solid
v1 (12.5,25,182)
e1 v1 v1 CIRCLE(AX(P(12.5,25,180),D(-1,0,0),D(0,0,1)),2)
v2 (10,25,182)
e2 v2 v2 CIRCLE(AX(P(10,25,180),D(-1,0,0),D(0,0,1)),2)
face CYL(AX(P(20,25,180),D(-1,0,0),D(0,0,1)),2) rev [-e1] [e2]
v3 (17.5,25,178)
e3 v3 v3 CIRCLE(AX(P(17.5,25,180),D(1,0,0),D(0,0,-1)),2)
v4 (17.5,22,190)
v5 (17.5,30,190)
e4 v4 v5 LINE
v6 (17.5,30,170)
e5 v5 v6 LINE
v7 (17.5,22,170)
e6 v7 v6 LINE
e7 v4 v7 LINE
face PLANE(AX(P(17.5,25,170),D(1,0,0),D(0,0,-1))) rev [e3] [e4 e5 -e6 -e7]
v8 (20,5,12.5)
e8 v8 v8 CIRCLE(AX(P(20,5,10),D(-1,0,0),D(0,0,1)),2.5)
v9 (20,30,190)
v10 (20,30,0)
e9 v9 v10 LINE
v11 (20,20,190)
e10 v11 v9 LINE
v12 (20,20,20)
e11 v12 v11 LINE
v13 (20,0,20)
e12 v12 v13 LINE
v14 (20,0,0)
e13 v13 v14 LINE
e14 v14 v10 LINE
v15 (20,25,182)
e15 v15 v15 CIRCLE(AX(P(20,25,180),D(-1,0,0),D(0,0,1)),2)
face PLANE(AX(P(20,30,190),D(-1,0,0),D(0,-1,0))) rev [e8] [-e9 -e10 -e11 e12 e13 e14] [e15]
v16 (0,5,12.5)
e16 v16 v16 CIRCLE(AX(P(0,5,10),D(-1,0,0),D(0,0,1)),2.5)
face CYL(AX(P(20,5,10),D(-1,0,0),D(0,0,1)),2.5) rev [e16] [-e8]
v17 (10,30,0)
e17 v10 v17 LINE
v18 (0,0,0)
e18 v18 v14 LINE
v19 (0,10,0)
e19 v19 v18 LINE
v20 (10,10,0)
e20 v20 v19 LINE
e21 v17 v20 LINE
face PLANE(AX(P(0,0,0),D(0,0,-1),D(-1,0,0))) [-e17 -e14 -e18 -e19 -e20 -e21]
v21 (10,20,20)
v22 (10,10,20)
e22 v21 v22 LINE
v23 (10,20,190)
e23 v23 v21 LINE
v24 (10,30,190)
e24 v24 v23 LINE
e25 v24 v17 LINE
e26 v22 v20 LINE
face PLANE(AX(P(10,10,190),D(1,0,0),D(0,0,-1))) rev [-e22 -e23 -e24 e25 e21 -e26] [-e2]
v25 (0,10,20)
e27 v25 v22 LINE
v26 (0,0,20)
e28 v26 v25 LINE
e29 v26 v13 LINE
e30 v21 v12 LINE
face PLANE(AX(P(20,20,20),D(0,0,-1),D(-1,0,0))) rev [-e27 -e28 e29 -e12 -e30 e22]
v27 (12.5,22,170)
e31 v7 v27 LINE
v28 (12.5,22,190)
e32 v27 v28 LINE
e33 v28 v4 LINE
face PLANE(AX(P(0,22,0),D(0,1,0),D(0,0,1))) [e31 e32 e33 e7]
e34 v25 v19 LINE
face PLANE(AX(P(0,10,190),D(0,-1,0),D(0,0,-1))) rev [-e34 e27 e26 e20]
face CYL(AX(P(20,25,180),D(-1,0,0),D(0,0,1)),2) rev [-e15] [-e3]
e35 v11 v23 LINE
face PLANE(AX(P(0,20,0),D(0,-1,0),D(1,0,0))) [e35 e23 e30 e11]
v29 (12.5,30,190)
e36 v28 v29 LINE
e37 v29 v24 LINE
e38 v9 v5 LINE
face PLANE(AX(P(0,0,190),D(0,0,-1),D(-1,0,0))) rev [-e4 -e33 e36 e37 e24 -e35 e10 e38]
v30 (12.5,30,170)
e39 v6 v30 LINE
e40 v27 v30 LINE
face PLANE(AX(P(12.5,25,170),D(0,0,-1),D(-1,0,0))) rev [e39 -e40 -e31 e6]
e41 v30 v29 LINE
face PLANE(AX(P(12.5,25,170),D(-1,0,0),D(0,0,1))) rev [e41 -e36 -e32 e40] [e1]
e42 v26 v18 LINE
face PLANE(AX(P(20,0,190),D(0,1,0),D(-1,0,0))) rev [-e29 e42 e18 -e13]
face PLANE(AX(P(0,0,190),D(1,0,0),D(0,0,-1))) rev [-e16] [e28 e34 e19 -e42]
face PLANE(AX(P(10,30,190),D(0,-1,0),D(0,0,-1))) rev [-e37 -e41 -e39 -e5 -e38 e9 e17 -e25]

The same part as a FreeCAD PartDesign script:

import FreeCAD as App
import Part
import Sketcher
from FreeCAD import Vector
Q = App.Units.Quantity


def add_polygon(sketch, points):
    """Adds a closed chain of lines whose ends are joined by coincident constraints."""
    first, n = sketch.GeometryCount, len(points)
    for a, b in zip(points, points[1:] + points[:1]):
        sketch.addGeometry(Part.LineSegment(App.Vector(*a, 0), App.Vector(*b, 0)), False)
    for i in range(n):
        sketch.addConstraint(Sketcher.Constraint("Coincident", first + i, 2, first + (i + 1) % n, 1))

doc = App.newDocument("Part")
body = doc.addObject("PartDesign::Body", "Body")

sketch1 = body.newObject("Sketcher::SketchObject", "Sketch")
sketch1.AttachmentSupport = (doc.getObject("XY_Plane"), [""])
sketch1.MapMode = "FlatFace"
add_polygon(sketch1, [(0, 10), (0, 0), (20, 0), (20, 30), (10, 30), (10, 10)])
sketch1.addConstraint(Sketcher.Constraint("Vertical", 0))
sketch1.addConstraint(Sketcher.Constraint("Horizontal", 1))
sketch1.addConstraint(Sketcher.Constraint("Vertical", 2))
sketch1.addConstraint(Sketcher.Constraint("Horizontal", 3))
sketch1.addConstraint(Sketcher.Constraint("Vertical", 4))
sketch1.addConstraint(Sketcher.Constraint("Horizontal", 5))
sketch1.addConstraint(Sketcher.Constraint("Coincident", 0, 2, -1, 1))
sketch1.addConstraint(Sketcher.Constraint("Equal", 3, 5))
sketch1.addConstraint(Sketcher.Constraint("Equal", 5, 0))
sketch1.addConstraint(Sketcher.Constraint("Equal", 1, 4))
sketch1.addConstraint(Sketcher.Constraint("DistanceX", 1, 1, 1, 2, Q("20 mm")))
pad1 = body.newObject("PartDesign::Pad", "Pad")
pad1.Profile = sketch1
pad1.Length = 190

sketch2 = body.newObject("Sketcher::SketchObject", "Sketch001")
sketch2.AttachmentSupport = (doc.getObject("XZ_Plane"), [""])
sketch2.MapMode = "FlatFace"
add_polygon(sketch2, [(10, 190), (10, 20), (20, 20), (20, 190)])
sketch2.addConstraint(Sketcher.Constraint("Vertical", 0))
sketch2.addConstraint(Sketcher.Constraint("Horizontal", 1))
sketch2.addConstraint(Sketcher.Constraint("Vertical", 2))
sketch2.addConstraint(Sketcher.Constraint("Horizontal", 3))
sketch2.addConstraint(Sketcher.Constraint("DistanceX", 1, 1, 1, 2, Q("10 mm")))
sketch2.addConstraint(Sketcher.Constraint("DistanceY", 0, 2, 0, 1, Q("170 mm")))
sketch2.addConstraint(Sketcher.Constraint("DistanceX", -1, 1, 0, 2, Q("10 mm")))
sketch2.addConstraint(Sketcher.Constraint("DistanceY", -1, 1, 0, 2, Q("20 mm")))
pocket1 = body.newObject("PartDesign::Pocket", "Pocket")
pocket1.Profile = sketch2
pocket1.Length = 20

sketch3 = body.newObject("Sketcher::SketchObject", "Sketch002")
sketch3.AttachmentSupport = (doc.getObject("YZ_Plane"), [""])
sketch3.MapMode = "FlatFace"
sketch3.AttachmentOffset = App.Placement(Vector(0, 0, 10), App.Rotation())
add_polygon(sketch3, [(10, 190), (0, 190), (0, 20), (10, 20)])
sketch3.addConstraint(Sketcher.Constraint("Horizontal", 0))
sketch3.addConstraint(Sketcher.Constraint("Vertical", 1))
sketch3.addConstraint(Sketcher.Constraint("Horizontal", 2))
sketch3.addConstraint(Sketcher.Constraint("Vertical", 3))
sketch3.addConstraint(Sketcher.Constraint("PointOnObject", 0, 2, -2))
sketch3.addConstraint(Sketcher.Constraint("DistanceX", 0, 2, 0, 1, Q("10 mm")))
sketch3.addConstraint(Sketcher.Constraint("DistanceY", 1, 2, 1, 1, Q("170 mm")))
sketch3.addConstraint(Sketcher.Constraint("DistanceY", -1, 1, 0, 2, Q("190 mm")))
pocket2 = body.newObject("PartDesign::Pocket", "Pocket001")
pocket2.Profile = sketch3
pocket2.Length = 20

sketch4 = body.newObject("Sketcher::SketchObject", "Sketch003")
sketch4.AttachmentSupport = (doc.getObject("YZ_Plane"), [""])
sketch4.MapMode = "FlatFace"
sketch4.addGeometry(Part.Circle(Vector(5, 10, 0), Vector(0, 0, 1), 2.8), False)
sketch4.addConstraint(Sketcher.Constraint("Diameter", 0, Q("5.5 mm")))
sketch4.addConstraint(Sketcher.Constraint("DistanceX", -1, 1, 0, 3, Q("5 mm")))
sketch4.addConstraint(Sketcher.Constraint("DistanceY", -1, 1, 0, 3, Q("10 mm")))
pocket3 = body.newObject("PartDesign::Pocket", "Pocket002")
pocket3.Profile = sketch4
pocket3.Length = 10
pocket3.Reversed = True

sketch5 = body.newObject("Sketcher::SketchObject", "Sketch004")
sketch5.AttachmentSupport = (doc.getObject("XZ_Plane"), [""])
sketch5.MapMode = "FlatFace"
sketch5.AttachmentOffset = App.Placement(Vector(0, 0, -30), App.Rotation())
add_polygon(sketch5, [(12, 170), (12, 190), (18, 190), (18, 170)])
sketch5.addConstraint(Sketcher.Constraint("Vertical", 0))
sketch5.addConstraint(Sketcher.Constraint("Horizontal", 1))
sketch5.addConstraint(Sketcher.Constraint("Vertical", 2))
sketch5.addConstraint(Sketcher.Constraint("Horizontal", 3))
sketch5.addConstraint(Sketcher.Constraint("DistanceX", 1, 1, 1, 2, Q("5 mm")))
sketch5.addConstraint(Sketcher.Constraint("DistanceY", 0, 1, 0, 2, Q("20 mm")))
sketch5.addConstraint(Sketcher.Constraint("DistanceY", -1, 1, 0, 2, Q("190 mm")))
sketch5.addConstraint(Sketcher.Constraint("DistanceX", -1, 1, 0, 2, Q("12.5 mm")))
pocket4 = body.newObject("PartDesign::Pocket", "Pocket003")
pocket4.Profile = sketch5
pocket4.Length = 5
pocket4.Reversed = True

sketch6 = body.newObject("Sketcher::SketchObject", "Sketch005")
sketch6.AttachmentSupport = (doc.getObject("YZ_Plane"), [""])
sketch6.MapMode = "FlatFace"
sketch6.addGeometry(Part.Circle(Vector(5, 10, 0), Vector(0, 0, 1), 2.8), False)
sketch6.addGeometry(Part.Circle(Vector(5, 10, 0), Vector(0, 0, 1), 2.5), False)
sketch6.addConstraint(Sketcher.Constraint("Coincident", 1, 3, 0, 3))
sketch6.addConstraint(Sketcher.Constraint("Diameter", 1, Q("5 mm")))
sketch6.addConstraint(Sketcher.Constraint("Diameter", 0, Q("5.5 mm")))
sketch6.addConstraint(Sketcher.Constraint("DistanceX", -1, 1, 0, 3, Q("5 mm")))
sketch6.addConstraint(Sketcher.Constraint("DistanceY", -1, 1, 0, 3, Q("10 mm")))
pad2 = body.newObject("PartDesign::Pad", "Pad001")
pad2.Profile = sketch6
pad2.Type = "UpToFirst"

sketch7 = body.newObject("Sketcher::SketchObject", "Sketch006")
sketch7.AttachmentSupport = (doc.getObject("YZ_Plane"), [""])
sketch7.MapMode = "FlatFace"
sketch7.addGeometry(Part.Circle(Vector(5, 10, 0), Vector(0, 0, 1), 2.5), False)
sketch7.addConstraint(Sketcher.Constraint("Diameter", 0, Q("5 mm")))
sketch7.addConstraint(Sketcher.Constraint("DistanceX", -1, 1, 0, 3, Q("5 mm")))
sketch7.addConstraint(Sketcher.Constraint("DistanceY", -1, 1, 0, 3, Q("10 mm")))
pocket5 = body.newObject("PartDesign::Pocket", "Pocket004")
pocket5.Profile = sketch7
pocket5.Type = "ThroughAll"
pocket5.Reversed = True

sketch8 = body.newObject("Sketcher::SketchObject", "Sketch007")
sketch8.AttachmentSupport = (doc.getObject("XZ_Plane"), [""])
sketch8.MapMode = "FlatFace"
sketch8.AttachmentOffset = App.Placement(Vector(0, 0, -25), App.Rotation())
add_polygon(sketch8, [(12, 170), (12, 190), (18, 190), (18, 170)])
sketch8.addConstraint(Sketcher.Constraint("Vertical", 0))
sketch8.addConstraint(Sketcher.Constraint("Horizontal", 1))
sketch8.addConstraint(Sketcher.Constraint("Vertical", 2))
sketch8.addConstraint(Sketcher.Constraint("Horizontal", 3))
sketch8.addConstraint(Sketcher.Constraint("DistanceX", 1, 1, 1, 2, Q("5 mm")))
sketch8.addConstraint(Sketcher.Constraint("DistanceY", 0, 1, 0, 2, Q("20 mm")))
sketch8.addConstraint(Sketcher.Constraint("DistanceY", -1, 1, 0, 2, Q("190 mm")))
sketch8.addConstraint(Sketcher.Constraint("DistanceX", -1, 1, 0, 2, Q("12.5 mm")))
pocket6 = body.newObject("PartDesign::Pocket", "Pocket005")
pocket6.Profile = sketch8
pocket6.Length = 3
pocket6.Reversed = True

sketch9 = body.newObject("Sketcher::SketchObject", "Sketch008")
sketch9.AttachmentSupport = (doc.getObject("YZ_Plane"), [""])
sketch9.MapMode = "FlatFace"
sketch9.AttachmentOffset = App.Placement(Vector(0, 0, 10), App.Rotation())
sketch9.addGeometry(Part.Circle(Vector(25, 180, 0), Vector(0, 0, 1), 2), False)
sketch9.addConstraint(Sketcher.Constraint("Diameter", 0, Q("4 mm")))
sketch9.addConstraint(Sketcher.Constraint("DistanceX", -1, 1, 0, 3, Q("25 mm")))
sketch9.addConstraint(Sketcher.Constraint("DistanceY", -1, 1, 0, 3, Q("180 mm")))
pocket7 = body.newObject("PartDesign::Pocket", "Pocket006")
pocket7.Profile = sketch9
pocket7.Type = "ThroughAll"
pocket7.Reversed = True

doc.recompute()
